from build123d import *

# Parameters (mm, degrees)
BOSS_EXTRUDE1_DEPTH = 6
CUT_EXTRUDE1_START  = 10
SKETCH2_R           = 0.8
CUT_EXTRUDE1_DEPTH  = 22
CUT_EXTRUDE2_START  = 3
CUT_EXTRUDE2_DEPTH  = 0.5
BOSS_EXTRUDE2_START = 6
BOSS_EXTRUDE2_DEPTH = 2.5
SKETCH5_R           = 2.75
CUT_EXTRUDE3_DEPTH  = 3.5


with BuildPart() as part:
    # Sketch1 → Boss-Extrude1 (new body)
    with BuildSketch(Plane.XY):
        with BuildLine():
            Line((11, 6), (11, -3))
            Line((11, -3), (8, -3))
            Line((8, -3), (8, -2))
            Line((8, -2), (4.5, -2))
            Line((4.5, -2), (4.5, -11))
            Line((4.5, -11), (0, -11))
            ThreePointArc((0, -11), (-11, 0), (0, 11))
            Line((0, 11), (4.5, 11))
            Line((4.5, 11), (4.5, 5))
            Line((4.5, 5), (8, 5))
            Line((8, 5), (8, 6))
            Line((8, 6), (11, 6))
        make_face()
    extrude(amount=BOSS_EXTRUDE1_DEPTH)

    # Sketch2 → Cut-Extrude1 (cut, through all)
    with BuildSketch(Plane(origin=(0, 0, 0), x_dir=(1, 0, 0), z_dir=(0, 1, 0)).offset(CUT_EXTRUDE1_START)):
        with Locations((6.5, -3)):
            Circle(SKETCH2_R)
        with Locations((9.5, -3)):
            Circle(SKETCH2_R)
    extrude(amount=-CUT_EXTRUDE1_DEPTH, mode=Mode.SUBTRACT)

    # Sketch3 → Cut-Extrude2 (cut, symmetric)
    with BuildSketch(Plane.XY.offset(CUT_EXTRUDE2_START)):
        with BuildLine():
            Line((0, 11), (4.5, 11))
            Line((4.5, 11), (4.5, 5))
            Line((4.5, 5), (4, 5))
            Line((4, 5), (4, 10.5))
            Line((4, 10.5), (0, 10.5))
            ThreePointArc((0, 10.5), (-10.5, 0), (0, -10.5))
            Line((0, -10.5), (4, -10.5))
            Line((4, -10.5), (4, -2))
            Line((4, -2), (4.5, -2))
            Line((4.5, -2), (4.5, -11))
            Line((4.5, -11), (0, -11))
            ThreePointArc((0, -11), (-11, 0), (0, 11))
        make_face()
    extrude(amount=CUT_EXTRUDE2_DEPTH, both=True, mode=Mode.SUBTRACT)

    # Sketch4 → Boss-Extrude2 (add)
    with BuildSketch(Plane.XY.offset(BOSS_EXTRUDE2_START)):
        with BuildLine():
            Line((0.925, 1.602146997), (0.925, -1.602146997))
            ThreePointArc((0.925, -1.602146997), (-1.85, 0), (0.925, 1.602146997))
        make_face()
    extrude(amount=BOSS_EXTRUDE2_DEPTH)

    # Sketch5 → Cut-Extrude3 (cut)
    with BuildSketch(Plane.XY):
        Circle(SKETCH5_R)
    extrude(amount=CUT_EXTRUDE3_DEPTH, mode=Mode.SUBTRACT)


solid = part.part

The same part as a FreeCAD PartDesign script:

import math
import FreeCAD as App
import Part
import Sketcher

V = App.Vector
Q = App.Units.Quantity

doc = App.newDocument("Part")
body = doc.addObject("PartDesign::Body", "Body")

sketch1 = body.newObject("Sketcher::SketchObject", "Sketch")
sketch1.AttachmentSupport = (doc.getObject("XY_Plane"), [""])
sketch1.MapMode = "FlatFace"
sketch1.addGeometry(Part.LineSegment(V(11, -3, 0), V(11, 6, 0)), False)
sketch1.addGeometry(Part.LineSegment(V(11, 6, 0), V(8, 6, 0)), False)
sketch1.addGeometry(Part.LineSegment(V(8, 6, 0), V(8, 5, 0)), False)
sketch1.addGeometry(Part.LineSegment(V(8, 5, 0), V(4.5, 5, 0)), False)
sketch1.addGeometry(Part.LineSegment(V(4.5, 5, 0), V(4.5, 11, 0)), False)
sketch1.addGeometry(Part.LineSegment(V(4.5, 11, 0), V(0, 11, 0)), False)
sketch1.addGeometry(Part.ArcOfCircle(Part.Circle(V(0, 0, 0), V(0, 0, 1), 11), math.radians(90), math.radians(270)), False)
sketch1.addGeometry(Part.LineSegment(V(0, -11, 0), V(4.5, -11, 0)), False)
sketch1.addGeometry(Part.LineSegment(V(4.5, -11, 0), V(4.5, -2, 0)), False)
sketch1.addGeometry(Part.LineSegment(V(4.5, -2, 0), V(8, -2, 0)), False)
sketch1.addGeometry(Part.LineSegment(V(8, -2, 0), V(8, -3, 0)), False)
sketch1.addGeometry(Part.LineSegment(V(8, -3, 0), V(11, -3, 0)), False)
sketch1.addConstraint(Sketcher.Constraint("Coincident", 0, 2, 1, 1))
sketch1.addConstraint(Sketcher.Constraint("Coincident", 1, 2, 2, 1))
sketch1.addConstraint(Sketcher.Constraint("Coincident", 2, 2, 3, 1))
sketch1.addConstraint(Sketcher.Constraint("Coincident", 3, 2, 4, 1))
sketch1.addConstraint(Sketcher.Constraint("Coincident", 4, 2, 5, 1))
sketch1.addConstraint(Sketcher.Constraint("Tangent", 5, 2, 6, 1))
sketch1.addConstraint(Sketcher.Constraint("Tangent", 6, 2, 7, 1))
sketch1.addConstraint(Sketcher.Constraint("Coincident", 7, 2, 8, 1))
sketch1.addConstraint(Sketcher.Constraint("Coincident", 8, 2, 9, 1))
sketch1.addConstraint(Sketcher.Constraint("Coincident", 9, 2, 10, 1))
sketch1.addConstraint(Sketcher.Constraint("Coincident", 10, 2, 11, 1))
sketch1.addConstraint(Sketcher.Constraint("Coincident", 11, 2, 0, 1))
sketch1.addConstraint(Sketcher.Constraint("Vertical", 0))
sketch1.addConstraint(Sketcher.Constraint("Horizontal", 1))
sketch1.addConstraint(Sketcher.Constraint("Vertical", 2))
sketch1.addConstraint(Sketcher.Constraint("Horizontal", 3))
sketch1.addConstraint(Sketcher.Constraint("Vertical", 4))
sketch1.addConstraint(Sketcher.Constraint("Horizontal", 5))
sketch1.addConstraint(Sketcher.Constraint("Horizontal", 7))
sketch1.addConstraint(Sketcher.Constraint("Vertical", 8))
sketch1.addConstraint(Sketcher.Constraint("Horizontal", 9))
sketch1.addConstraint(Sketcher.Constraint("Vertical", 10))
sketch1.addConstraint(Sketcher.Constraint("Horizontal", 11))
sketch1.addConstraint(Sketcher.Constraint("Coincident", 6, 3, -1, 1))
sketch1.addConstraint(Sketcher.Constraint("Vertical", 4, 2, 7, 2))
sketch1.addConstraint(Sketcher.Constraint("Vertical", 2, 2, 9, 2))
sketch1.addConstraint(Sketcher.Constraint("Equal", 0, 8))
sketch1.addConstraint(Sketcher.Constraint("Equal", 2, 10))
sketch1.addConstraint(Sketcher.Constraint("Radius", 6, Q("11 mm")))
sketch1.addConstraint(Sketcher.Constraint("DistanceX", 1, 2, 1, 1, Q("3 mm")))
sketch1.addConstraint(Sketcher.Constraint("DistanceY", 0, 1, 0, 2, Q("9 mm")))
sketch1.addConstraint(Sketcher.Constraint("DistanceY", 2, 2, 2, 1, Q("1 mm")))
sketch1.addConstraint(Sketcher.Constraint("DistanceX", 3, 2, 3, 1, Q("3.5 mm")))
sketch1.addConstraint(Sketcher.Constraint("DistanceX", 5, 2, 5, 1, Q("4.5 mm")))
pad1 = body.newObject("PartDesign::Pad", "Pad")
pad1.Profile = sketch1
pad1.Length = 6

sketch2 = body.newObject("Sketcher::SketchObject", "Sketch001")
sketch2.AttachmentSupport = (doc.getObject("XZ_Plane"), [""])
sketch2.MapMode = "FlatFace"
sketch2.AttachmentOffset = App.Placement(V(0, 0, -10), App.Rotation())
sketch2.addGeometry(Part.Circle(V(6.5, 3, 0), V(0, 0, 1), 0.8), False)
sketch2.addGeometry(Part.Circle(V(9.5, 3, 0), V(0, 0, 1), 0.8), False)
sketch2.addConstraint(Sketcher.Constraint("Equal", 0, 1))
sketch2.addConstraint(Sketcher.Constraint("Horizontal", 0, 3, 1, 3))
sketch2.addConstraint(Sketcher.Constraint("Diameter", 0, Q("1.6 mm")))
sketch2.addConstraint(Sketcher.Constraint("DistanceY", -1, 1, 0, 3, Q("3 mm")))
sketch2.addConstraint(Sketcher.Constraint("DistanceX", 0, 3, 1, 3, Q("3 mm")))
sketch2.addConstraint(Sketcher.Constraint("DistanceX", -1, 1, 0, 3, Q("6.5 mm")))
pocket1 = body.newObject("PartDesign::Pocket", "Pocket")
pocket1.Profile = sketch2
pocket1.Type = "ThroughAll"
pocket1.Reversed = True

sketch3 = body.newObject("Sketcher::SketchObject", "Sketch002")
sketch3.AttachmentSupport = (doc.getObject("XY_Plane"), [""])
sketch3.MapMode = "FlatFace"
sketch3.AttachmentOffset = App.Placement(V(0, 0, 3), App.Rotation())
sketch3.addGeometry(Part.LineSegment(V(4.5, 11, 0), V(0, 11, 0)), False)
sketch3.addGeometry(Part.ArcOfCircle(Part.Circle(V(0, 0, 0), V(0, 0, 1), 11), math.radians(90), math.radians(270)), False)
sketch3.addGeometry(Part.LineSegment(V(0, -11, 0), V(4.5, -11, 0)), False)
sketch3.addGeometry(Part.LineSegment(V(4.5, -11, 0), V(4.5, -2, 0)), False)
sketch3.addGeometry(Part.LineSegment(V(4.5, -2, 0), V(4, -2, 0)), False)
sketch3.addGeometry(Part.LineSegment(V(4, -2, 0), V(4, -10.5, 0)), False)
sketch3.addGeometry(Part.LineSegment(V(4, -10.5, 0), V(0, -10.5, 0)), False)
sketch3.addGeometry(Part.ArcOfCircle(Part.Circle(V(0, 0, 0), V(0, 0, 1), 10.5), math.radians(90), math.radians(270)), False)
sketch3.addGeometry(Part.LineSegment(V(0, 10.5, 0), V(4, 10.5, 0)), False)
sketch3.addGeometry(Part.LineSegment(V(4, 10.5, 0), V(4, 5, 0)), False)
sketch3.addGeometry(Part.LineSegment(V(4, 5, 0), V(4.5, 5, 0)), False)
sketch3.addGeometry(Part.LineSegment(V(4.5, 5, 0), V(4.5, 11, 0)), False)
sketch3.addConstraint(Sketcher.Constraint("Tangent", 0, 2, 1, 1))
sketch3.addConstraint(Sketcher.Constraint("Tangent", 1, 2, 2, 1))
sketch3.addConstraint(Sketcher.Constraint("Coincident", 2, 2, 3, 1))
sketch3.addConstraint(Sketcher.Constraint("Coincident", 3, 2, 4, 1))
sketch3.addConstraint(Sketcher.Constraint("Coincident", 4, 2, 5, 1))
sketch3.addConstraint(Sketcher.Constraint("Coincident", 5, 2, 6, 1))
sketch3.addConstraint(Sketcher.Constraint("Tangent", 6, 2, 7, 2))
sketch3.addConstraint(Sketcher.Constraint("Tangent", 7, 1, 8, 1))
sketch3.addConstraint(Sketcher.Constraint("Coincident", 8, 2, 9, 1))
sketch3.addConstraint(Sketcher.Constraint("Coincident", 9, 2, 10, 1))
sketch3.addConstraint(Sketcher.Constraint("Coincident", 10, 2, 11, 1))
sketch3.addConstraint(Sketcher.Constraint("Coincident", 11, 2, 0, 1))
sketch3.addConstraint(Sketcher.Constraint("Horizontal", 0))
sketch3.addConstraint(Sketcher.Constraint("Horizontal", 2))
sketch3.addConstraint(Sketcher.Constraint("Vertical", 3))
sketch3.addConstraint(Sketcher.Constraint("Horizontal", 4))
sketch3.addConstraint(Sketcher.Constraint("Vertical", 5))
sketch3.addConstraint(Sketcher.Constraint("Horizontal", 6))
sketch3.addConstraint(Sketcher.Constraint("Horizontal", 8))
sketch3.addConstraint(Sketcher.Constraint("Vertical", 9))
sketch3.addConstraint(Sketcher.Constraint("Horizontal", 10))
sketch3.addConstraint(Sketcher.Constraint("Vertical", 11))
sketch3.addConstraint(Sketcher.Constraint("Coincident", 1, 3, -1, 1))
sketch3.addConstraint(Sketcher.Constraint("Coincident", 7, 3, -1, 1))
sketch3.addConstraint(Sketcher.Constraint("Vertical", 5, 2, 8, 2))
sketch3.addConstraint(Sketcher.Constraint("Vertical", 3, 2, 10, 2))
sketch3.addConstraint(Sketcher.Constraint("Radius", 1, Q("11 mm")))
sketch3.addConstraint(Sketcher.Constraint("Radius", 7, Q("10.5 mm")))
sketch3.addConstraint(Sketcher.Constraint("DistanceX", 6, 2, 6, 1, Q("4 mm")))
sketch3.addConstraint(Sketcher.Constraint("DistanceY", 3, 1, 3, 2, Q("9 mm")))
sketch3.addConstraint(Sketcher.Constraint("DistanceY", 11, 1, 11, 2, Q("6 mm")))
sketch3.addConstraint(Sketcher.Constraint("DistanceX", 0, 2, 0, 1, Q("4.5 mm")))
pocket2 = body.newObject("PartDesign::Pocket", "Pocket001")
pocket2.Profile = sketch3
pocket2.Length = 1
pocket2.Midplane = True

sketch4 = body.newObject("Sketcher::SketchObject", "Sketch003")
sketch4.AttachmentSupport = (doc.getObject("XY_Plane"), [""])
sketch4.MapMode = "FlatFace"
sketch4.AttachmentOffset = App.Placement(V(0, 0, 6), App.Rotation())
sketch4.addGeometry(Part.LineSegment(V(0.9, -1.6, 0), V(0.9, 1.6, 0)), False)
sketch4.addGeometry(Part.ArcOfCircle(Part.Circle(V(0, 0, 0), V(0, 0, 1), 1.9), math.radians(60), math.radians(300)), False)
sketch4.addConstraint(Sketcher.Constraint("Coincident", 0, 1, 1, 2))
sketch4.addConstraint(Sketcher.Constraint("Coincident", 1, 1, 0, 2))
sketch4.addConstraint(Sketcher.Constraint("Vertical", 0))
sketch4.addConstraint(Sketcher.Constraint("Coincident", 1, 3, -1, 1))
sketch4.addConstraint(Sketcher.Constraint("Radius", 1, Q("1.85 mm")))
sketch4.addConstraint(Sketcher.Constraint("DistanceX", -1, 1, 0, 1, Q("0.925 mm")))
pad2 = body.newObject("PartDesign::Pad", "Pad001")
pad2.Profile = sketch4
pad2.Length = 2.5

sketch5 = body.newObject("Sketcher::SketchObject", "Sketch004")
sketch5.AttachmentSupport = (doc.getObject("XY_Plane"), [""])
sketch5.MapMode = "FlatFace"
sketch5.addGeometry(Part.Circle(V(0, 0, 0), V(0, 0, 1), 2.8), False)
sketch5.addConstraint(Sketcher.Constraint("Coincident", 0, 3, -1, 1))
sketch5.addConstraint(Sketcher.Constraint("Diameter", 0, Q("5.5 mm")))
pocket3 = body.newObject("PartDesign::Pocket", "Pocket002")
pocket3.Profile = sketch5
pocket3.Length = 3.5
pocket3.Reversed = True

doc.recompute()
